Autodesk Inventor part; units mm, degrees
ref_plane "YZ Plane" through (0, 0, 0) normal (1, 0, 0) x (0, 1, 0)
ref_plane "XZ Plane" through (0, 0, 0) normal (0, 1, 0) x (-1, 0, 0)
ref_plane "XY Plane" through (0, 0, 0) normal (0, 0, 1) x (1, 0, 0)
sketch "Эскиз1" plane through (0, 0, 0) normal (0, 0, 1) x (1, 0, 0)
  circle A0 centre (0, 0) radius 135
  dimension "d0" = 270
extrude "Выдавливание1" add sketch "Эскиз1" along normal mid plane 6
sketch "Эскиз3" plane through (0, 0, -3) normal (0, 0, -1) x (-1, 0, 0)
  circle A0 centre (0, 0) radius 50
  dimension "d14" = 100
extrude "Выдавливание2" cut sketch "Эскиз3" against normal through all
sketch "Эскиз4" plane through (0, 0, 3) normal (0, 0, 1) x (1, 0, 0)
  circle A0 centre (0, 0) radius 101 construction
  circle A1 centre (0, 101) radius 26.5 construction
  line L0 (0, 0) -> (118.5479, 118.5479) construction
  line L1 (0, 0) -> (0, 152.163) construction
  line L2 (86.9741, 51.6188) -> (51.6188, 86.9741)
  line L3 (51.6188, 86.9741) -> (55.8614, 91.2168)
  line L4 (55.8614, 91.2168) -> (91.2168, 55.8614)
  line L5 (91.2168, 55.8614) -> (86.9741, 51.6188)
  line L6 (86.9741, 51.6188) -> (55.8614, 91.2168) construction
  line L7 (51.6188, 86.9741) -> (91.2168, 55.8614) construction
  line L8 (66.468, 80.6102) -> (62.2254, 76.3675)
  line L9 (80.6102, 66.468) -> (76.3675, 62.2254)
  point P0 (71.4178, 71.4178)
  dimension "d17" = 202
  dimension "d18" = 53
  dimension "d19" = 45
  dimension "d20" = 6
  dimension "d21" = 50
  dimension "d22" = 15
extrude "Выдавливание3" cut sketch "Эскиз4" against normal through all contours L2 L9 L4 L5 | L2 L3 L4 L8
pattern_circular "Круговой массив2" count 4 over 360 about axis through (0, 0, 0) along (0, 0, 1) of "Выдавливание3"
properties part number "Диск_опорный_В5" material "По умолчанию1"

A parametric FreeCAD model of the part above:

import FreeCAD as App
import Part
import Sketcher
Q = App.Units.Quantity

doc = App.newDocument("Part")
body = doc.addObject("PartDesign::Body", "Body")

sketch1 = body.newObject("Sketcher::SketchObject", "Sketch")
sketch1.AttachmentSupport = (doc.getObject("XY_Plane"), [""])
sketch1.MapMode = "FlatFace"
sketch1.addGeometry(Part.Circle(App.Vector(0, 0, 0), App.Vector(0, 0, 1), 135), False)
sketch1.addConstraint([
    Sketcher.Constraint("Coincident", 0, 3, -1, 1),
    Sketcher.Constraint("Diameter", 0, Q("270 mm")),
])
pad1 = body.newObject("PartDesign::Pad", "Pad")
pad1.Profile = sketch1
pad1.Length = 6
pad1.Midplane = True

sketch2 = body.newObject("Sketcher::SketchObject", "Sketch001")
sketch2.AttachmentSupport = (doc.getObject("XY_Plane"), [""])
sketch2.MapMode = "FlatFace"
sketch2.AttachmentOffset = App.Placement(App.Vector(0, 0, -3), App.Rotation())
sketch2.addGeometry(Part.Circle(App.Vector(0, 0, 0), App.Vector(0, 0, 1), 50), False)
sketch2.addConstraint([
    Sketcher.Constraint("Coincident", 0, 3, -1, 1),
    Sketcher.Constraint("Diameter", 0, Q("100 mm")),
])
pocket1 = body.newObject("PartDesign::Pocket", "Pocket")
pocket1.Profile = sketch2
pocket1.Type = "ThroughAll"
pocket1.Reversed = True

sketch3 = body.newObject("Sketcher::SketchObject", "Sketch002")
sketch3.AttachmentSupport = (doc.getObject("XY_Plane"), [""])
sketch3.MapMode = "FlatFace"
sketch3.AttachmentOffset = App.Placement(App.Vector(0, 0, 3), App.Rotation())
sketch3.addGeometry([
    Part.LineSegment(App.Vector(76.3675, 62.2254, 0), App.Vector(86.9741, 51.6188, 0)),
    Part.LineSegment(App.Vector(86.9741, 51.6188, 0), App.Vector(91.2168, 55.8614, 0)),
    Part.LineSegment(App.Vector(91.2168, 55.8614, 0), App.Vector(80.6102, 66.468, 0)),
    Part.LineSegment(App.Vector(80.6102, 66.468, 0), App.Vector(76.3675, 62.2254, 0)),
    Part.LineSegment(App.Vector(51.6188, 86.9741, 0), App.Vector(62.2254, 76.3675, 0)),
    Part.LineSegment(App.Vector(62.2254, 76.3675, 0), App.Vector(66.468, 80.6102, 0)),
    Part.LineSegment(App.Vector(66.468, 80.6102, 0), App.Vector(55.8614, 91.2168, 0)),
    Part.LineSegment(App.Vector(55.8614, 91.2168, 0), App.Vector(51.6188, 86.9741, 0)),
], False)
sketch3.addConstraint([
    Sketcher.Constraint("Coincident", 0, 2, 1, 1),
    Sketcher.Constraint("Coincident", 1, 2, 2, 1),
    Sketcher.Constraint("Coincident", 2, 2, 3, 1),
    Sketcher.Constraint("Coincident", 3, 2, 0, 1),
    Sketcher.Constraint("Coincident", 4, 2, 5, 1),
    Sketcher.Constraint("Coincident", 5, 2, 6, 1),
    Sketcher.Constraint("Coincident", 6, 2, 7, 1),
    Sketcher.Constraint("Coincident", 7, 2, 4, 1),
    Sketcher.Constraint("Perpendicular", 0, 1),
    Sketcher.Constraint("Perpendicular", 1, 2),
    Sketcher.Constraint("Perpendicular", 2, 3),
    Sketcher.Constraint("Perpendicular", 3, 4),
    Sketcher.Constraint("Perpendicular", 4, 5),
    Sketcher.Constraint("Perpendicular", 5, 6),
    Sketcher.Constraint("Perpendicular", 6, 7),
    Sketcher.Constraint("Equal", 2, 4),
    Sketcher.Constraint("Equal", 3, 5),
    Sketcher.Constraint("Angle", 0, Q("-45 deg")),
    Sketcher.Constraint("Distance", 0, Q("15 mm")),
    Sketcher.Constraint("Distance", 1, Q("6 mm")),
    Sketcher.Constraint("DistanceX", -1, 1, 0, 2, Q("86.974 mm")),
    Sketcher.Constraint("DistanceY", -1, 1, 2, 2, Q("66.468 mm")),
    Sketcher.Constraint("DistanceX", -1, 1, 5, 2, Q("66.468 mm")),
    Sketcher.Constraint("DistanceY", -1, 1, 7, 2, Q("86.974 mm")),
])
pocket2 = body.newObject("PartDesign::Pocket", "Pocket001")
pocket2.Profile = sketch3
pocket2.Type = "ThroughAll"
doc.recompute()

polarpattern = body.newObject("PartDesign::PolarPattern", "PolarPattern")
polarpattern.Originals = [pocket2]
polarpattern.Axis = (doc.getObject("Z_Axis"), [""])
polarpattern.Angle = 360
polarpattern.Occurrences = 4
body.Tip = polarpattern

doc.recompute()
